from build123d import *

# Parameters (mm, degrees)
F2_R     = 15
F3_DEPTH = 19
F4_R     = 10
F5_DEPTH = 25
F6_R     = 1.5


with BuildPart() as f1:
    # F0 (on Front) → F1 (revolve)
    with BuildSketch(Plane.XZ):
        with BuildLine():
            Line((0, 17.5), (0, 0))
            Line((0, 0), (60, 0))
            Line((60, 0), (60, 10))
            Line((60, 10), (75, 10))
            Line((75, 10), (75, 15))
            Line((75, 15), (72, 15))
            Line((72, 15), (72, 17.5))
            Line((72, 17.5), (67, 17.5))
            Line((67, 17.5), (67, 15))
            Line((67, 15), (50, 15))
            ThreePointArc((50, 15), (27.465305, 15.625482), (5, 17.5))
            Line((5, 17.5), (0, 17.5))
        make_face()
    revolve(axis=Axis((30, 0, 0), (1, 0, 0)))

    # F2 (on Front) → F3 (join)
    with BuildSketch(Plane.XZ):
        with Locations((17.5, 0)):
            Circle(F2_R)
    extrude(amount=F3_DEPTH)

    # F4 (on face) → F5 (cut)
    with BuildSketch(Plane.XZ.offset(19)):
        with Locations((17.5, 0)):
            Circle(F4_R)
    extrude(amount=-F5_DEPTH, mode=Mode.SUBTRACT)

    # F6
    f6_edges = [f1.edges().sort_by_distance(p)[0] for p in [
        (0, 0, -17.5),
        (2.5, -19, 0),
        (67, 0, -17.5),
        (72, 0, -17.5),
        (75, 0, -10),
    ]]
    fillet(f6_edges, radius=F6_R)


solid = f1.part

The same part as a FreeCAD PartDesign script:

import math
import FreeCAD as App
import Part
import Sketcher
from FreeCAD import Vector
Q = App.Units.Quantity


def edges_at(feature, points):
    """Names of the edges that pass closest to the given points."""
    edges = feature.Shape.Edges
    near = lambda p: min(range(len(edges)), key=lambda i: edges[i].distToShape(Part.Vertex(*p))[0])
    return sorted({f"Edge{near(p) + 1}" for p in points})

doc = App.newDocument("Part")
params = doc.addObject("Spreadsheet::Sheet", "Params")
for row, (alias, value) in enumerate([
    ("sketch1_width", "60 mm"),
    ("sketch1_width2", "15 mm"),
    ("sketch1_width3", "3 mm"),
    ("sketch1_width4", "5 mm"),
    ("sketch1_width5", "17 mm"),
    ("revolution_angle", "360 deg"),
    ("sketch2_diameter", "30 mm"),
    ("pad1_length", "19 mm"),
    ("sketch3_diameter", "20 mm"),
    ("pocket1_length", "25 mm"),
    ("fillet_radius", "1.5 mm"),
], start=1):
    params.set(f"A{row}", alias)
    params.set(f"B{row}", "=" + value)
    params.setAlias(f"B{row}", alias)

body = doc.addObject("PartDesign::Body", "Body")

sketch1 = body.newObject("Sketcher::SketchObject", "Sketch")
sketch1.AttachmentSupport = (doc.getObject("XZ_Plane"), [""])
sketch1.MapMode = "FlatFace"
sketch1.addGeometry(Part.LineSegment(Vector(0, 17.5, 0), Vector(0, 0, 0)), False)
sketch1.addGeometry(Part.LineSegment(Vector(0, 0, 0), Vector(60, 0, 0)), False)
sketch1.addGeometry(Part.LineSegment(Vector(60, 0, 0), Vector(60, 10, 0)), False)
sketch1.addGeometry(Part.LineSegment(Vector(60, 10, 0), Vector(75, 10, 0)), False)
sketch1.addGeometry(Part.LineSegment(Vector(75, 10, 0), Vector(75, 15, 0)), False)
sketch1.addGeometry(Part.LineSegment(Vector(75, 15, 0), Vector(72, 15, 0)), False)
sketch1.addGeometry(Part.LineSegment(Vector(72, 15, 0), Vector(72, 17.5, 0)), False)
sketch1.addGeometry(Part.LineSegment(Vector(72, 17.5, 0), Vector(67, 17.5, 0)), False)
sketch1.addGeometry(Part.LineSegment(Vector(67, 17.5, 0), Vector(67, 15, 0)), False)
sketch1.addGeometry(Part.LineSegment(Vector(67, 15, 0), Vector(50, 15, 0)), False)
sketch1.addGeometry(Part.ArcOfCircle(Part.Circle(Vector(50.000019, 421.250334, 0), Vector(0, 0, 1), 406.250334), math.radians(-96.359658), math.radians(-90.000003)), False)
sketch1.addGeometry(Part.LineSegment(Vector(5, 17.5, 0), Vector(0, 17.5, 0)), False)
sketch1.addConstraint(Sketcher.Constraint("Coincident", 0, 2, 1, 1))
sketch1.addConstraint(Sketcher.Constraint("Coincident", 1, 2, 2, 1))
sketch1.addConstraint(Sketcher.Constraint("Coincident", 2, 2, 3, 1))
sketch1.addConstraint(Sketcher.Constraint("Coincident", 3, 2, 4, 1))
sketch1.addConstraint(Sketcher.Constraint("Coincident", 4, 2, 5, 1))
sketch1.addConstraint(Sketcher.Constraint("Coincident", 5, 2, 6, 1))
sketch1.addConstraint(Sketcher.Constraint("Coincident", 6, 2, 7, 1))
sketch1.addConstraint(Sketcher.Constraint("Coincident", 7, 2, 8, 1))
sketch1.addConstraint(Sketcher.Constraint("Coincident", 8, 2, 9, 1))
sketch1.addConstraint(Sketcher.Constraint("Tangent", 9, 2, 10, 2))
sketch1.addConstraint(Sketcher.Constraint("Coincident", 10, 1, 11, 1))
sketch1.addConstraint(Sketcher.Constraint("Coincident", 11, 2, 0, 1))
sketch1.addConstraint(Sketcher.Constraint("Vertical", 0))
sketch1.addConstraint(Sketcher.Constraint("Horizontal", 1))
sketch1.addConstraint(Sketcher.Constraint("Vertical", 2))
sketch1.addConstraint(Sketcher.Constraint("Horizontal", 3))
sketch1.addConstraint(Sketcher.Constraint("Vertical", 4))
sketch1.addConstraint(Sketcher.Constraint("Horizontal", 5))
sketch1.addConstraint(Sketcher.Constraint("Vertical", 6))
sketch1.addConstraint(Sketcher.Constraint("Horizontal", 7))
sketch1.addConstraint(Sketcher.Constraint("Vertical", 8))
sketch1.addConstraint(Sketcher.Constraint("Horizontal", 9))
sketch1.addConstraint(Sketcher.Constraint("Horizontal", 11))
sketch1.addConstraint(Sketcher.Constraint("Coincident", 0, 2, -1, 1))
sketch1.addConstraint(Sketcher.Constraint("Horizontal", 5, 2, 8, 2))
sketch1.addConstraint(Sketcher.Constraint("Horizontal", 7, 2, 10, 1))
sketch1.addConstraint(Sketcher.Constraint("Equal", 7, 11))
sketch1.addConstraint(Sketcher.Constraint("Equal", 11, 4))
sketch1.addConstraint(Sketcher.Constraint("DistanceX", 1, 1, 1, 2, Q("60 mm")))
sketch1.addConstraint(Sketcher.Constraint("DistanceX", 3, 1, 3, 2, Q("15 mm")))
sketch1.addConstraint(Sketcher.Constraint("DistanceX", 5, 2, 5, 1, Q("3 mm")))
sketch1.addConstraint(Sketcher.Constraint("DistanceX", 7, 2, 7, 1, Q("5 mm")))
sketch1.addConstraint(Sketcher.Constraint("DistanceX", 9, 2, 9, 1, Q("17 mm")))
sketch1.addConstraint(Sketcher.Constraint("DistanceY", 2, 1, 2, 2, Q("10 mm")))
sketch1.addConstraint(Sketcher.Constraint("DistanceY", 0, 2, 0, 1, Q("17.5 mm")))
sketch1.setExpression("Constraints[28]", "Params.sketch1_width")
sketch1.setExpression("Constraints[29]", "Params.sketch1_width2")
sketch1.setExpression("Constraints[30]", "Params.sketch1_width3")
sketch1.setExpression("Constraints[31]", "Params.sketch1_width4")
sketch1.setExpression("Constraints[32]", "Params.sketch1_width5")
revolution = body.newObject("PartDesign::Revolution", "Revolution")
revolution.Profile = sketch1
revolution.ReferenceAxis = (sketch1, ["H_Axis"])
revolution.setExpression("Angle", "Params.revolution_angle")

sketch2 = body.newObject("Sketcher::SketchObject", "Sketch001")
sketch2.AttachmentSupport = (doc.getObject("XZ_Plane"), [""])
sketch2.MapMode = "FlatFace"
sketch2.addGeometry(Part.Circle(Vector(18, 0, 0), Vector(0, 0, 1), 15), False)
sketch2.addConstraint(Sketcher.Constraint("PointOnObject", 0, 3, -1))
sketch2.addConstraint(Sketcher.Constraint("Diameter", 0, Q("30 mm")))
sketch2.addConstraint(Sketcher.Constraint("DistanceX", -1, 1, 0, 3, Q("17.5 mm")))
sketch2.setExpression("Constraints[1]", "Params.sketch2_diameter")
pad1 = body.newObject("PartDesign::Pad", "Pad")
pad1.Profile = sketch2
pad1.setExpression("Length", "Params.pad1_length")

sketch3 = body.newObject("Sketcher::SketchObject", "Sketch002")
sketch3.AttachmentSupport = (doc.getObject("XZ_Plane"), [""])
sketch3.MapMode = "FlatFace"
sketch3.AttachmentOffset = App.Placement(Vector(0, 0, 19), App.Rotation())
sketch3.addGeometry(Part.Circle(Vector(18, 0, 0), Vector(0, 0, 1), 10), False)
sketch3.addConstraint(Sketcher.Constraint("PointOnObject", 0, 3, -1))
sketch3.addConstraint(Sketcher.Constraint("Diameter", 0, Q("20 mm")))
sketch3.addConstraint(Sketcher.Constraint("DistanceX", -1, 1, 0, 3, Q("17.5 mm")))
sketch3.setExpression("Constraints[1]", "Params.sketch3_diameter")
pocket1 = body.newObject("PartDesign::Pocket", "Pocket")
pocket1.Profile = sketch3
pocket1.setExpression("Length", "Params.pocket1_length")
doc.recompute()

fillet = body.newObject("PartDesign::Fillet", "Fillet")
fillet.Base = (pocket1, edges_at(pocket1, [
    (0, 0, -17.5),
    (2.5, -19, 0),
    (67, 0, -17.5),
    (72, 0, -17.5),
    (75, 0, -10),
]))
fillet.setExpression("Radius", "Params.fillet_radius")

doc.recompute()
